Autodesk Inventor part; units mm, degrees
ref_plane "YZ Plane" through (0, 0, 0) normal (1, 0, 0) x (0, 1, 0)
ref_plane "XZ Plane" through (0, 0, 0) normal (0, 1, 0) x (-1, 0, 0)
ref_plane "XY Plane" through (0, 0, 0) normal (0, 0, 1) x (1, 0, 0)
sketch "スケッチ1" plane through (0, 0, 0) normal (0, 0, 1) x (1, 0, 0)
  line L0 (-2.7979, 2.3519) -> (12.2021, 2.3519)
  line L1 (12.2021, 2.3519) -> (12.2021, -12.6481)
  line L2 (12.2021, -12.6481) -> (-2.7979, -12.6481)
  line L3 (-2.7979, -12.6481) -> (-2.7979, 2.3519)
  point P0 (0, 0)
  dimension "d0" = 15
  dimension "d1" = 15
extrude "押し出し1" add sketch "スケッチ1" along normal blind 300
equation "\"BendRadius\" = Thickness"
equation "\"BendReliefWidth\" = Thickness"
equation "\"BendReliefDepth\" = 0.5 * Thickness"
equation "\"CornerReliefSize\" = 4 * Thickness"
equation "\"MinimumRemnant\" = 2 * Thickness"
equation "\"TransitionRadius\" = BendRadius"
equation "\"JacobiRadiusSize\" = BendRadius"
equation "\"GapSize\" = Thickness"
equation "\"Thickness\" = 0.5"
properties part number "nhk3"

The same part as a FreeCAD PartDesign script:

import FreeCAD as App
import Part
import Sketcher


def add_polygon(sketch, points):
    """Adds a closed chain of lines whose ends are joined by coincident constraints."""
    first, n = sketch.GeometryCount, len(points)
    for a, b in zip(points, points[1:] + points[:1]):
        sketch.addGeometry(Part.LineSegment(App.Vector(*a, 0), App.Vector(*b, 0)), False)
    for i in range(n):
        sketch.addConstraint(Sketcher.Constraint("Coincident", first + i, 2, first + (i + 1) % n, 1))

doc = App.newDocument("Part")
body = doc.addObject("PartDesign::Body", "Body")

sketch1 = doc.addObject("Sketcher::SketchObject", "Sketch")
body.addObject(sketch1)
sketch1.AttachmentSupport = (doc.XY_Plane, [""])
sketch1.MapMode = "FlatFace"
add_polygon(sketch1, [(12, 2), (-3, 2), (-3, -13), (12, -13)])
sketch1.addConstraint([
    Sketcher.Constraint("Horizontal", 0),
    Sketcher.Constraint("Vertical", 1),
    Sketcher.Constraint("Horizontal", 2),
    Sketcher.Constraint("Vertical", 3),
    Sketcher.Constraint("Equal", 2, 1),
    Sketcher.Constraint("DistanceX", 0, 2, 0, 1, 15.0),
    Sketcher.Constraint("DistanceX", 0, 2, -1, 1, 2.798),
    Sketcher.Constraint("DistanceY", -1, 1, 0, 2, 2.352),
])
pad1 = doc.addObject("PartDesign::Pad", "Pad")
body.addObject(pad1)
pad1.Profile = sketch1
pad1.Length = 300

doc.recompute()
